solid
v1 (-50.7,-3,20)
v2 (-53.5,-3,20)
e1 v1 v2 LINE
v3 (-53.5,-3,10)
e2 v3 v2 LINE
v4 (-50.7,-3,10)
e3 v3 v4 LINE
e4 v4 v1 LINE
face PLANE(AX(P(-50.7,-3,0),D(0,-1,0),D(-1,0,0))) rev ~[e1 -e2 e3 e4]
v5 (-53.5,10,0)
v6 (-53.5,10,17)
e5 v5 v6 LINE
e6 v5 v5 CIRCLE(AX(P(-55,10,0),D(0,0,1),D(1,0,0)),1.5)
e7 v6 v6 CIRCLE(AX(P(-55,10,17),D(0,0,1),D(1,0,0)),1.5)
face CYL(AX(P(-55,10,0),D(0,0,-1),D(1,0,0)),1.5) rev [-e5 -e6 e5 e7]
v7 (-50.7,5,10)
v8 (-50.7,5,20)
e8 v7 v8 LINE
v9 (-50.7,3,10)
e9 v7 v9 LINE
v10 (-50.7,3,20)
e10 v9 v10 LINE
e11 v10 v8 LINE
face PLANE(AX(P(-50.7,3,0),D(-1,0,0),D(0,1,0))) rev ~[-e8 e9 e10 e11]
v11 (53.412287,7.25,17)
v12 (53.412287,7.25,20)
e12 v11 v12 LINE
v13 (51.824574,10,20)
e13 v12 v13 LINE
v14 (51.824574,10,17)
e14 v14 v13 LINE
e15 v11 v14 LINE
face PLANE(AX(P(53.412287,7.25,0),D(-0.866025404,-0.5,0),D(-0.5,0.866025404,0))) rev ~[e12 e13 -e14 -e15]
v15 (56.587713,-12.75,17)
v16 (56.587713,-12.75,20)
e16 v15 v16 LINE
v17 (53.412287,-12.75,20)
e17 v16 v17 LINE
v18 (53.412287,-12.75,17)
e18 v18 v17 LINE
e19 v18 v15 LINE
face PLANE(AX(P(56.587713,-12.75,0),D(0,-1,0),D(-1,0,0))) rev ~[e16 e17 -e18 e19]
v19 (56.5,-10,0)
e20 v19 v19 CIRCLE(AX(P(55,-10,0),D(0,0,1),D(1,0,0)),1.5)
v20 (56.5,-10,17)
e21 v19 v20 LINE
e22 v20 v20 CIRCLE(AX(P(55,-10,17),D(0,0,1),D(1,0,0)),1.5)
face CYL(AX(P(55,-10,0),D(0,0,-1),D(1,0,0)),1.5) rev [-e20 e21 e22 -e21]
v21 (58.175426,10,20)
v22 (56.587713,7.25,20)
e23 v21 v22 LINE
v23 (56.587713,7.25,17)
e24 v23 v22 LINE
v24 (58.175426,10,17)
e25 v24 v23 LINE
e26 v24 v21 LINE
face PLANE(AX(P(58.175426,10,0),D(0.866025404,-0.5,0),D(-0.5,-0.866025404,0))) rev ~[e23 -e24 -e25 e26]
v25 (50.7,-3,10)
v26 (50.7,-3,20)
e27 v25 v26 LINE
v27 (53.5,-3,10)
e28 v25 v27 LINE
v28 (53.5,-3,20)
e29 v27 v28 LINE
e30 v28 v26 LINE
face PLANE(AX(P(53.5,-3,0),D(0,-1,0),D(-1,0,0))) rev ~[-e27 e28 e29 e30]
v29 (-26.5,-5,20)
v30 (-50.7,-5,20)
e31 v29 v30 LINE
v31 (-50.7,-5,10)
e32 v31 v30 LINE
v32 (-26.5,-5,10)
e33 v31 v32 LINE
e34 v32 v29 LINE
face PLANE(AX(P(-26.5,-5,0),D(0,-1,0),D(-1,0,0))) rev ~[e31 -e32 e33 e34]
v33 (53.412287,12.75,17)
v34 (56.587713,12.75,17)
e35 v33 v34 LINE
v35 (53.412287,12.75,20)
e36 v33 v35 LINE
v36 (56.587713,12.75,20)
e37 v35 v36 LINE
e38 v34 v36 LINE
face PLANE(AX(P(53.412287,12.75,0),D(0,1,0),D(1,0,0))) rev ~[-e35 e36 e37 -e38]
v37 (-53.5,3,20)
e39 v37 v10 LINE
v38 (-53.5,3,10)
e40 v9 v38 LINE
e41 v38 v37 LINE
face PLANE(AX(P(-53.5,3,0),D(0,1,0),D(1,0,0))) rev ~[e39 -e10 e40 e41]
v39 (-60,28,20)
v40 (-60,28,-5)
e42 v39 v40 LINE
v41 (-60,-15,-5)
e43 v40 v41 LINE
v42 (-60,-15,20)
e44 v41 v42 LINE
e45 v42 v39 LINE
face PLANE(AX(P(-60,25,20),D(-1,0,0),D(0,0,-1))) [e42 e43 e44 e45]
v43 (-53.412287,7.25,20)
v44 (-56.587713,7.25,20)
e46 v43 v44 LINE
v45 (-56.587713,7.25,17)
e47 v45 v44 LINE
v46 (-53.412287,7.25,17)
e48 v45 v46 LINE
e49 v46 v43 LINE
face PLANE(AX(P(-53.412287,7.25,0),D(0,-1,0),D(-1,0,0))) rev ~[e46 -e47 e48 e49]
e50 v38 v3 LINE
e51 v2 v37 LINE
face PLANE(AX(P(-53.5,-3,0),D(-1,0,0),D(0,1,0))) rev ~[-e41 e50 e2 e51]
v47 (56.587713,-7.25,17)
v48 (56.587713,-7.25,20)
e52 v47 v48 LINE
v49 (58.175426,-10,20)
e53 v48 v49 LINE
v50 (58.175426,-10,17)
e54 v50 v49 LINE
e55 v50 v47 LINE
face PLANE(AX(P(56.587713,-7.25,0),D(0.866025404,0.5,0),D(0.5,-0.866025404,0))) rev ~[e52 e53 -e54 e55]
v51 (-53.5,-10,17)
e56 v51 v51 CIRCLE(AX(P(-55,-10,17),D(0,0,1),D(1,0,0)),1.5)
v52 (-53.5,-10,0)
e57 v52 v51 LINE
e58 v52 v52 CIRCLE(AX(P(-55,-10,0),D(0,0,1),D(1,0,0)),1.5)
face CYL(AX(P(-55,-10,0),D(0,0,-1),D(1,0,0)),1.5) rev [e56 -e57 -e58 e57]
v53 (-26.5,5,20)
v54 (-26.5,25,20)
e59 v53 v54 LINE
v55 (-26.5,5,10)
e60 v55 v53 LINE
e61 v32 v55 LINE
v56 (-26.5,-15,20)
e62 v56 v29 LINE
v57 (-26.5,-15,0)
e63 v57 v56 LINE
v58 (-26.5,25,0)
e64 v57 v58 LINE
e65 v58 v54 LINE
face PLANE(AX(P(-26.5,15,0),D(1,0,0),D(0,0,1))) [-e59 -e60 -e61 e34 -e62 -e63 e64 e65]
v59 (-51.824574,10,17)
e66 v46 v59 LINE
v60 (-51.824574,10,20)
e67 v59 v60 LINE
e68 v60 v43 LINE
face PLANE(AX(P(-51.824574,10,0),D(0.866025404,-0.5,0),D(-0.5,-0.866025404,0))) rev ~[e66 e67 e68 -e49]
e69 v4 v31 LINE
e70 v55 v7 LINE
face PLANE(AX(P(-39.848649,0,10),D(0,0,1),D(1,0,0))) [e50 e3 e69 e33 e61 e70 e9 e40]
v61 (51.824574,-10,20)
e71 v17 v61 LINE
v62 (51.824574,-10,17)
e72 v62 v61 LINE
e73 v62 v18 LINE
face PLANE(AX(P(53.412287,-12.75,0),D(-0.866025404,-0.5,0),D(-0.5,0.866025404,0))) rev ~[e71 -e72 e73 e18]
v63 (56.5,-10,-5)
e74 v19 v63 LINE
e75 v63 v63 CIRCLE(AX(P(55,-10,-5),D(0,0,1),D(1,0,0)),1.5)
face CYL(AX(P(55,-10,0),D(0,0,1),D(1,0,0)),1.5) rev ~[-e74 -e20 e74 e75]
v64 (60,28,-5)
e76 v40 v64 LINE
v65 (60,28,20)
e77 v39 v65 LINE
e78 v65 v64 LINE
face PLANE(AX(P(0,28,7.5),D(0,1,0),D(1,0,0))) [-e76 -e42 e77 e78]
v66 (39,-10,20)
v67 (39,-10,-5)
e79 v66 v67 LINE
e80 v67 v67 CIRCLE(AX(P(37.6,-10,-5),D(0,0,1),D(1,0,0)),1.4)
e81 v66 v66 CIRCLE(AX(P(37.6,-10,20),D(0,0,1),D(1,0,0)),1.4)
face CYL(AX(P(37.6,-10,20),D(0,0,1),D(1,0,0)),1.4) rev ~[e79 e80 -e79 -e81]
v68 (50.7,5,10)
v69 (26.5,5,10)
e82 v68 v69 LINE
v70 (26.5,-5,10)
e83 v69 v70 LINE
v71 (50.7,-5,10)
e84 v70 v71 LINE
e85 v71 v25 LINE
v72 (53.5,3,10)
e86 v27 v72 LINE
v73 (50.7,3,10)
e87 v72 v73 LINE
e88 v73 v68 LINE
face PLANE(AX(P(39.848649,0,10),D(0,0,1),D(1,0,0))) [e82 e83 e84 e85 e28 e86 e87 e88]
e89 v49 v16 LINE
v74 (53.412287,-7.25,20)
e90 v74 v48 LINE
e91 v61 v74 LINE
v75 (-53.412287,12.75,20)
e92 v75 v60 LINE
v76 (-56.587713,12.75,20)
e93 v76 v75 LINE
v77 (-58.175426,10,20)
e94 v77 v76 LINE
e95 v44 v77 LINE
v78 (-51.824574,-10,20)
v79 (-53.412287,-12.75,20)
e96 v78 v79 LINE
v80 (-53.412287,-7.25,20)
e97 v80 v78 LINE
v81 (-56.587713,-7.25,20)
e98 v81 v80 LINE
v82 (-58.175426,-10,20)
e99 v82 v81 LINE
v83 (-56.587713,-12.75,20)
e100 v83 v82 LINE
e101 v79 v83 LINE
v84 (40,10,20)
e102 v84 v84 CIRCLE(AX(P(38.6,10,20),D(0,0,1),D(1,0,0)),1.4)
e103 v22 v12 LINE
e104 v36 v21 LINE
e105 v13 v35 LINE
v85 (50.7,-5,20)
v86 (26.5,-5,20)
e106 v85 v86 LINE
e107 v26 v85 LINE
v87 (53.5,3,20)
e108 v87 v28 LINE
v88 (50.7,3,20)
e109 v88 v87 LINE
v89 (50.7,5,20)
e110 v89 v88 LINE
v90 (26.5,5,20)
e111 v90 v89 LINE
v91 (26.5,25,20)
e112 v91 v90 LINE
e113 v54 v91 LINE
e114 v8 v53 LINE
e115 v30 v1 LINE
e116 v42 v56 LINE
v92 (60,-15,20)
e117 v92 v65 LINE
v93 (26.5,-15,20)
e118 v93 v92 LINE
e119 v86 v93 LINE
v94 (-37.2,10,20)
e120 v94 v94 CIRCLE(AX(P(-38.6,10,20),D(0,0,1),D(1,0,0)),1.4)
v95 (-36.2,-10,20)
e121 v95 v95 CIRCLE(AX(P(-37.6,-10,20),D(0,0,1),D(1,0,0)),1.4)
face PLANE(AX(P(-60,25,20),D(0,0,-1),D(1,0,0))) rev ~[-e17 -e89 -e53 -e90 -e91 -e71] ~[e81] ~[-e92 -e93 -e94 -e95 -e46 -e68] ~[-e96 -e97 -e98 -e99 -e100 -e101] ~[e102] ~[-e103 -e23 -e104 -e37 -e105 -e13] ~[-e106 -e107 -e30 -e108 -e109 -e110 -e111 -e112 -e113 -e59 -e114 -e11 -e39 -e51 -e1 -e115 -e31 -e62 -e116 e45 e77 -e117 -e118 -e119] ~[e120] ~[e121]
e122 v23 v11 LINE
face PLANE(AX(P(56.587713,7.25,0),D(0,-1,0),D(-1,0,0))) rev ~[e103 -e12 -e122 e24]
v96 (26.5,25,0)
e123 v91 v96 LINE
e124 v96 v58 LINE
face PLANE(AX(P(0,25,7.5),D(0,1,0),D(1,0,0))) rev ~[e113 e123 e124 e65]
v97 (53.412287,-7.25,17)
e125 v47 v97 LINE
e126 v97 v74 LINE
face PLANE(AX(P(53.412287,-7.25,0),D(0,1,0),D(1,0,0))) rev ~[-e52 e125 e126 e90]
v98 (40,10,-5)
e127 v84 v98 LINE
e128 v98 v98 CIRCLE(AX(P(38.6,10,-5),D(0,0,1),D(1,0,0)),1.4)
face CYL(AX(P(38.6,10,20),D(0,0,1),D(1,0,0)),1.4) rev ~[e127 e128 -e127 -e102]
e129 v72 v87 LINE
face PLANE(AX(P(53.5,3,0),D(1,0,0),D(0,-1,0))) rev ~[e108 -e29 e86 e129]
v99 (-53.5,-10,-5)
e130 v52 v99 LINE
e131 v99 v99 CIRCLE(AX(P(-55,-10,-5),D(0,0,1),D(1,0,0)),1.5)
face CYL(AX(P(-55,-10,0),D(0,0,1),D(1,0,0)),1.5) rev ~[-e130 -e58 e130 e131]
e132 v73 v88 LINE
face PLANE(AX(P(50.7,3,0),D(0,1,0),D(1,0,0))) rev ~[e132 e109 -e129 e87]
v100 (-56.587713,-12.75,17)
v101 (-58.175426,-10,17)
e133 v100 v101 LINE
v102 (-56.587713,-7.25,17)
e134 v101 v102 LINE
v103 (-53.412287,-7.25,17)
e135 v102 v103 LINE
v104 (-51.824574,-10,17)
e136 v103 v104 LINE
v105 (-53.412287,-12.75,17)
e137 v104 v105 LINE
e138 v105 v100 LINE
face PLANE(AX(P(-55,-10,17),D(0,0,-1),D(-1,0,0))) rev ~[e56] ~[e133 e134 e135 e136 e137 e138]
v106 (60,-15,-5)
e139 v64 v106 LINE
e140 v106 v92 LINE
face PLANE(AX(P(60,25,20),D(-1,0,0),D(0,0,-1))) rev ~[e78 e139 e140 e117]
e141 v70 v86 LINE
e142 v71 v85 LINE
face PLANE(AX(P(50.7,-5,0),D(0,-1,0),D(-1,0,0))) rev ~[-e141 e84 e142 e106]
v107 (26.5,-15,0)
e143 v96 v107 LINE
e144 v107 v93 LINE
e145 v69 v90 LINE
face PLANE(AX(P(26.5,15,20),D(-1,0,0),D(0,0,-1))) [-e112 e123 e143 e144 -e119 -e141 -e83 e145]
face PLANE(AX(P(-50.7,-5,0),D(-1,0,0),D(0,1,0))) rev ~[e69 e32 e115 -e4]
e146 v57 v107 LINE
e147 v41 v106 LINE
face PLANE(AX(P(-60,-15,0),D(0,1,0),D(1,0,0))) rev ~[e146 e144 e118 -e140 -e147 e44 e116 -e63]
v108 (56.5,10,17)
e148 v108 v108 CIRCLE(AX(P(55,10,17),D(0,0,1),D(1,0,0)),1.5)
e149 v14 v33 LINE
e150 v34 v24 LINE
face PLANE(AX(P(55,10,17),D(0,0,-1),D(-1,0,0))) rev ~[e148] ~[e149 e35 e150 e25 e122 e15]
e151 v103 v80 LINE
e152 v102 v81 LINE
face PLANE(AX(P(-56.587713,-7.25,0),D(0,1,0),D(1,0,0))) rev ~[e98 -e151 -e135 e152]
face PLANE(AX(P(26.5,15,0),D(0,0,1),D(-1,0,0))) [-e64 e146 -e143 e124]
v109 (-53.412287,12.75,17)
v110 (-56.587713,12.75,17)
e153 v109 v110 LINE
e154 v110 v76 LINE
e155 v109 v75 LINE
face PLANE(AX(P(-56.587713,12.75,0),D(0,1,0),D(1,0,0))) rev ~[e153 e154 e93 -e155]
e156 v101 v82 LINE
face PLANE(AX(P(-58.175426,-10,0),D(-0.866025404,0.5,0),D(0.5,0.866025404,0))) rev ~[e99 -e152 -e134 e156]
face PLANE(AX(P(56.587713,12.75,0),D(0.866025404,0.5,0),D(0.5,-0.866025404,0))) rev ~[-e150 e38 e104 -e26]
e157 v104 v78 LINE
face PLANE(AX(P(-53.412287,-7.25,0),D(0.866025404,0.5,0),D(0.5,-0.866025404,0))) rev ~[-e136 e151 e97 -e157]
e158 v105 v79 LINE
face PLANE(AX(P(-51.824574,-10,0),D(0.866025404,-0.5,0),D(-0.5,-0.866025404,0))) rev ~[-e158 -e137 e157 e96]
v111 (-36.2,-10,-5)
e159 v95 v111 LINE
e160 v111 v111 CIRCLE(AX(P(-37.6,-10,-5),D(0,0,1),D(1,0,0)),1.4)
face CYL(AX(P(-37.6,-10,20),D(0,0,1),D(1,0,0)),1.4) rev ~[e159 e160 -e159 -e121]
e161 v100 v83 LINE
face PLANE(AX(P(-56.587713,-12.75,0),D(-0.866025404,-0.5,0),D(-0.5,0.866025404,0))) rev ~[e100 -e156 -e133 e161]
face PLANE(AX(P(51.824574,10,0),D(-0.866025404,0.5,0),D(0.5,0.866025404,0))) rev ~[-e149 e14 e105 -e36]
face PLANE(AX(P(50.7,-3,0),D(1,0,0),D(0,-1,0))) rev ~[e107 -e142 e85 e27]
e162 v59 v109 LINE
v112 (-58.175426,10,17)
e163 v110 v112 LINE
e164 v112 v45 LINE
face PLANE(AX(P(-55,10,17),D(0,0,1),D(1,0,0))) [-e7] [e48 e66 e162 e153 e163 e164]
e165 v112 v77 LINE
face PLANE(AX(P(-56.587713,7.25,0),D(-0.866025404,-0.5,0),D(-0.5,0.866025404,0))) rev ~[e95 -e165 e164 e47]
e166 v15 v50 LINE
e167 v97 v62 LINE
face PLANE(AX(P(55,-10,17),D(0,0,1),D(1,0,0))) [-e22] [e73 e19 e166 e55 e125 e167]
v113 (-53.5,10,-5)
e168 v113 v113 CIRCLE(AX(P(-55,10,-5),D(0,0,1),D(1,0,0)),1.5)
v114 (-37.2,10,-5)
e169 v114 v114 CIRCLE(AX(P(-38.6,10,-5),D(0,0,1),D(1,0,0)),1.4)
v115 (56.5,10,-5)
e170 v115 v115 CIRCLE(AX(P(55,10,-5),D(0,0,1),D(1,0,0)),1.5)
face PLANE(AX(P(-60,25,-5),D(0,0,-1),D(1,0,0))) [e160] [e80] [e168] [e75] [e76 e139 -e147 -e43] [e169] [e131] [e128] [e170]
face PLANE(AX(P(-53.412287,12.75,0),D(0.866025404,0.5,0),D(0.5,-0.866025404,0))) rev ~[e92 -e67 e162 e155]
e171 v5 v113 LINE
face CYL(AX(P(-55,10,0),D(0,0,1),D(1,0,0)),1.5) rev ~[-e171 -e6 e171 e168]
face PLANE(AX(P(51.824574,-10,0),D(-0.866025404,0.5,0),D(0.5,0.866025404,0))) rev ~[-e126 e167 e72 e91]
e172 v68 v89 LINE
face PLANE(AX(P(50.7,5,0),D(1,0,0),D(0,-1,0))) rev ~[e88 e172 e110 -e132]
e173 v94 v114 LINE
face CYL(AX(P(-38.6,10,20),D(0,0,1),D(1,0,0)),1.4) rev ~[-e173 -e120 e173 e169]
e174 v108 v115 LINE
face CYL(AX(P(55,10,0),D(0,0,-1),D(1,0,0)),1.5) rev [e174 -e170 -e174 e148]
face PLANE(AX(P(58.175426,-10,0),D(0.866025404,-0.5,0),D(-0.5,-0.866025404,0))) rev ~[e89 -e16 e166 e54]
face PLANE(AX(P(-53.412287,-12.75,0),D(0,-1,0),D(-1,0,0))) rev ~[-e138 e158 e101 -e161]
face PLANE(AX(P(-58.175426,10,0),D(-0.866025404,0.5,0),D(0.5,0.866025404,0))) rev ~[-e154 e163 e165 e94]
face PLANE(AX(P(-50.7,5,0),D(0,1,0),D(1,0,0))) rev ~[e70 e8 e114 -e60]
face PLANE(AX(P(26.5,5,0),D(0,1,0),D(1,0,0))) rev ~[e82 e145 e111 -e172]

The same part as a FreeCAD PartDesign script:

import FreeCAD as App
import Part
import Sketcher

V = App.Vector
Q = App.Units.Quantity

doc = App.newDocument("Part")
body = doc.addObject("PartDesign::Body", "Body")

# Sketch on XY plane
sketch1 = body.newObject("Sketcher::SketchObject", "Sketch")
sketch1.AttachmentSupport = (doc.getObject("XY_Plane"), [""])
sketch1.MapMode = "FlatFace"
sketch1.addGeometry([
    Part.LineSegment(V(-60, 15, 0), V(-60, -15, 0)),  # 0
    Part.LineSegment(V(-60, -15, 0), V(60, -15, 0)),  # 1
    Part.LineSegment(V(60, -15, 0), V(60, 15, 0)),  # 2
    Part.LineSegment(V(60, 15, 0), V(-60, 15, 0)),  # 3
    Part.Circle(V(-55, -10, 0), V(0, 0, 1), 1.5),  # 4
    Part.Circle(V(55, -10, 0), V(0, 0, 1), 1.5),  # 5
    Part.Circle(V(-55, 10, 0), V(0, 0, 1), 1.5),  # 6
    Part.Circle(V(55, 10, 0), V(0, 0, 1), 1.5),  # 7
], False)
sketch1.addConstraint([
    Sketcher.Constraint("Coincident", 0, 2, 1, 1),
    Sketcher.Constraint("Coincident", 1, 2, 2, 1),
    Sketcher.Constraint("Coincident", 2, 2, 3, 1),
    Sketcher.Constraint("Coincident", 3, 2, 0, 1),
    Sketcher.Constraint("Vertical", 0),
    Sketcher.Constraint("Horizontal", 1),
    Sketcher.Constraint("Vertical", 2),
    Sketcher.Constraint("Horizontal", 3),
    Sketcher.Constraint("Equal", 4, 5),
    Sketcher.Constraint("Equal", 5, 6),
    Sketcher.Constraint("Equal", 6, 7),
    Sketcher.Constraint("Symmetric", 5, 3, 6, 3, -1, 1),
    Sketcher.Constraint("Symmetric", 4, 3, 7, 3, -1, 1),
    Sketcher.Constraint("Symmetric", 0, 2, 2, 2, -1, 1),
    Sketcher.Constraint("Symmetric", 4, 3, 5, 3, -2),
    Sketcher.Constraint("Diameter", 4, Q("3 mm")),
    Sketcher.Constraint("DistanceX", 1, 1, 1, 2, Q("120 mm")),
    Sketcher.Constraint("DistanceY", 0, 2, 0, 1, Q("30 mm")),
    Sketcher.Constraint("DistanceX", 4, 3, -1, 1, Q("55 mm")),
    Sketcher.Constraint("DistanceY", 4, 3, -1, 1, Q("10 mm")),
])
pad1 = body.newObject("PartDesign::Pad", "Pad")
pad1.Profile = sketch1
pad1.Length = 5
pad1.Reversed = True

# Sketch on XY plane
sketch2 = body.newObject("Sketcher::SketchObject", "Sketch001")
sketch2.AttachmentSupport = (doc.getObject("XY_Plane"), [""])
sketch2.MapMode = "FlatFace"
sketch2.addGeometry([
    Part.LineSegment(V(-26.5, 15, 0), V(-60, 15, 0)),  # 0
    Part.LineSegment(V(-60, 15, 0), V(-60, -15, 0)),  # 1
    Part.LineSegment(V(-60, -15, 0), V(-26.5, -15, 0)),  # 2
    Part.LineSegment(V(-26.5, -15, 0), V(-26.5, -5, 0)),  # 3
    Part.LineSegment(V(-26.5, -5, 0), V(-50.7, -5, 0)),  # 4
    Part.LineSegment(V(-50.7, -5, 0), V(-50.7, -3, 0)),  # 5
    Part.LineSegment(V(-50.7, -3, 0), V(-53.5, -3, 0)),  # 6
    Part.LineSegment(V(-53.5, -3, 0), V(-53.5, 3, 0)),  # 7
    Part.LineSegment(V(-53.5, 3, 0), V(-50.7, 3, 0)),  # 8
    Part.LineSegment(V(-50.7, 3, 0), V(-50.7, 5, 0)),  # 9
    Part.LineSegment(V(-50.7, 5, 0), V(-26.5, 5, 0)),  # 10
    Part.LineSegment(V(-26.5, 5, 0), V(-26.5, 15, 0)),  # 11
    Part.LineSegment(V(-56.587713, -7.25, 0), V(-53.412287, -7.25, 0)),  # 12
    Part.LineSegment(V(-53.412287, -7.25, 0), V(-51.824574, -10, 0)),  # 13
    Part.LineSegment(V(-51.824574, -10, 0), V(-53.412287, -12.75, 0)),  # 14
    Part.LineSegment(V(-53.412287, -12.75, 0), V(-56.587713, -12.75, 0)),  # 15
    Part.LineSegment(V(-56.587713, -12.75, 0), V(-58.175426, -10, 0)),  # 16
    Part.LineSegment(V(-58.175426, -10, 0), V(-56.587713, -7.25, 0)),  # 17
    Part.LineSegment(V(-56.587713, 12.75, 0), V(-53.412287, 12.75, 0)),  # 18
    Part.LineSegment(V(-53.412287, 12.75, 0), V(-51.824574, 10, 0)),  # 19
    Part.LineSegment(V(-51.824574, 10, 0), V(-53.412287, 7.25, 0)),  # 20
    Part.LineSegment(V(-53.412287, 7.25, 0), V(-56.587713, 7.25, 0)),  # 21
    Part.LineSegment(V(-56.587713, 7.25, 0), V(-58.175426, 10, 0)),  # 22
    Part.LineSegment(V(-58.175426, 10, 0), V(-56.587713, 12.75, 0)),  # 23
    Part.LineSegment(V(60, 15, 0), V(26.5, 15, 0)),  # 24
    Part.LineSegment(V(26.5, 15, 0), V(26.5, 5, 0)),  # 25
    Part.LineSegment(V(26.5, 5, 0), V(50.7, 5, 0)),  # 26
    Part.LineSegment(V(50.7, 5, 0), V(50.7, 3, 0)),  # 27
    Part.LineSegment(V(50.7, 3, 0), V(53.5, 3, 0)),  # 28
    Part.LineSegment(V(53.5, 3, 0), V(53.5, -3, 0)),  # 29
    Part.LineSegment(V(53.5, -3, 0), V(50.7, -3, 0)),  # 30
    Part.LineSegment(V(50.7, -3, 0), V(50.7, -5, 0)),  # 31
    Part.LineSegment(V(50.7, -5, 0), V(26.5, -5, 0)),  # 32
    Part.LineSegment(V(26.5, -5, 0), V(26.5, -15, 0)),  # 33
    Part.LineSegment(V(26.5, -15, 0), V(60, -15, 0)),  # 34
    Part.LineSegment(V(60, -15, 0), V(60, 15, 0)),  # 35
    Part.LineSegment(V(53.412287, -7.25, 0), V(56.587713, -7.25, 0)),  # 36
    Part.LineSegment(V(56.587713, -7.25, 0), V(58.175426, -10, 0)),  # 37
    Part.LineSegment(V(58.175426, -10, 0), V(56.587713, -12.75, 0)),  # 38
    Part.LineSegment(V(56.587713, -12.75, 0), V(53.412287, -12.75, 0)),  # 39
    Part.LineSegment(V(53.412287, -12.75, 0), V(51.824574, -10, 0)),  # 40
    Part.LineSegment(V(51.824574, -10, 0), V(53.412287, -7.25, 0)),  # 41
    Part.LineSegment(V(58.175426, 10, 0), V(56.587713, 7.25, 0)),  # 42
    Part.LineSegment(V(56.587713, 7.25, 0), V(53.412287, 7.25, 0)),  # 43
    Part.LineSegment(V(53.412287, 7.25, 0), V(51.824574, 10, 0)),  # 44
    Part.LineSegment(V(51.824574, 10, 0), V(53.412287, 12.75, 0)),  # 45
    Part.LineSegment(V(53.412287, 12.75, 0), V(56.587713, 12.75, 0)),  # 46
    Part.LineSegment(V(56.587713, 12.75, 0), V(58.175426, 10, 0)),  # 47
], False)
sketch2.addConstraint([
    Sketcher.Constraint("Coincident", 0, 2, 1, 1),
    Sketcher.Constraint("Coincident", 1, 2, 2, 1),
    Sketcher.Constraint("Coincident", 2, 2, 3, 1),
    Sketcher.Constraint("Coincident", 3, 2, 4, 1),
    Sketcher.Constraint("Coincident", 4, 2, 5, 1),
    Sketcher.Constraint("Coincident", 5, 2, 6, 1),
    Sketcher.Constraint("Coincident", 6, 2, 7, 1),
    Sketcher.Constraint("Coincident", 7, 2, 8, 1),
    Sketcher.Constraint("Coincident", 8, 2, 9, 1),
    Sketcher.Constraint("Coincident", 9, 2, 10, 1),
    Sketcher.Constraint("Coincident", 10, 2, 11, 1),
    Sketcher.Constraint("Coincident", 11, 2, 0, 1),
    Sketcher.Constraint("Coincident", 12, 2, 13, 1),
    Sketcher.Constraint("Coincident", 13, 2, 14, 1),
    Sketcher.Constraint("Coincident", 14, 2, 15, 1),
    Sketcher.Constraint("Coincident", 15, 2, 16, 1),
    Sketcher.Constraint("Coincident", 16, 2, 17, 1),
    Sketcher.Constraint("Coincident", 17, 2, 12, 1),
    Sketcher.Constraint("Coincident", 18, 2, 19, 1),
    Sketcher.Constraint("Coincident", 19, 2, 20, 1),
    Sketcher.Constraint("Coincident", 20, 2, 21, 1),
    Sketcher.Constraint("Coincident", 21, 2, 22, 1),
    Sketcher.Constraint("Coincident", 22, 2, 23, 1),
    Sketcher.Constraint("Coincident", 23, 2, 18, 1),
    Sketcher.Constraint("Coincident", 24, 2, 25, 1),
    Sketcher.Constraint("Coincident", 25, 2, 26, 1),
    Sketcher.Constraint("Coincident", 26, 2, 27, 1),
    Sketcher.Constraint("Coincident", 27, 2, 28, 1),
    Sketcher.Constraint("Coincident", 28, 2, 29, 1),
    Sketcher.Constraint("Coincident", 29, 2, 30, 1),
    Sketcher.Constraint("Coincident", 30, 2, 31, 1),
    Sketcher.Constraint("Coincident", 31, 2, 32, 1),
    Sketcher.Constraint("Coincident", 32, 2, 33, 1),
    Sketcher.Constraint("Coincident", 33, 2, 34, 1),
    Sketcher.Constraint("Coincident", 34, 2, 35, 1),
    Sketcher.Constraint("Coincident", 35, 2, 24, 1),
    Sketcher.Constraint("Coincident", 36, 2, 37, 1),
    Sketcher.Constraint("Coincident", 37, 2, 38, 1),
    Sketcher.Constraint("Coincident", 38, 2, 39, 1),
    Sketcher.Constraint("Coincident", 39, 2, 40, 1),
    Sketcher.Constraint("Coincident", 40, 2, 41, 1),
    Sketcher.Constraint("Coincident", 41, 2, 36, 1),
    Sketcher.Constraint("Coincident", 42, 2, 43, 1),
    Sketcher.Constraint("Coincident", 43, 2, 44, 1),
    Sketcher.Constraint("Coincident", 44, 2, 45, 1),
    Sketcher.Constraint("Coincident", 45, 2, 46, 1),
    Sketcher.Constraint("Coincident", 46, 2, 47, 1),
    Sketcher.Constraint("Coincident", 47, 2, 42, 1),
    Sketcher.Constraint("Horizontal", 0),
    Sketcher.Constraint("Vertical", 1),
    Sketcher.Constraint("Horizontal", 2),
    Sketcher.Constraint("Vertical", 3),
    Sketcher.Constraint("Horizontal", 4),
    Sketcher.Constraint("Vertical", 5),
    Sketcher.Constraint("Horizontal", 6),
    Sketcher.Constraint("Vertical", 7),
    Sketcher.Constraint("Horizontal", 8),
    Sketcher.Constraint("Vertical", 9),
    Sketcher.Constraint("Horizontal", 10),
    Sketcher.Constraint("Vertical", 11),
    Sketcher.Constraint("Horizontal", 12),
    Sketcher.Constraint("Horizontal", 15),
    Sketcher.Constraint("Horizontal", 18),
    Sketcher.Constraint("Horizontal", 21),
    Sketcher.Constraint("Horizontal", 24),
    Sketcher.Constraint("Vertical", 25),
    Sketcher.Constraint("Horizontal", 26),
    Sketcher.Constraint("Vertical", 27),
    Sketcher.Constraint("Horizontal", 28),
    Sketcher.Constraint("Vertical", 29),
    Sketcher.Constraint("Horizontal", 30),
    Sketcher.Constraint("Vertical", 31),
    Sketcher.Constraint("Horizontal", 32),
    Sketcher.Constraint("Vertical", 33),
    Sketcher.Constraint("Horizontal", 34),
    Sketcher.Constraint("Vertical", 35),
    Sketcher.Constraint("Horizontal", 36),
    Sketcher.Constraint("Horizontal", 39),
    Sketcher.Constraint("Horizontal", 43),
    Sketcher.Constraint("Horizontal", 46),
    Sketcher.Constraint("Symmetric", 2, 2, 24, 2, -1, 1),
    Sketcher.Constraint("Symmetric", 4, 2, 26, 2, -1, 1),
    Sketcher.Constraint("Symmetric", 6, 2, 28, 2, -1, 1),
    Sketcher.Constraint("Symmetric", 8, 2, 30, 2, -1, 1),
    Sketcher.Constraint("Symmetric", 10, 2, 32, 2, -1, 1),
    Sketcher.Constraint("Symmetric", 0, 2, 34, 2, -1, 1),
    Sketcher.Constraint("Symmetric", 21, 2, 36, 2, -1, 1),
    Sketcher.Constraint("Symmetric", 22, 2, 37, 2, -1, 1),
    Sketcher.Constraint("Symmetric", 23, 2, 38, 2, -1, 1),
    Sketcher.Constraint("Symmetric", 19, 2, 40, 2, -1, 1),
    Sketcher.Constraint("Symmetric", 17, 2, 42, 2, -1, 1),
    Sketcher.Constraint("Symmetric", 13, 2, 44, 2, -1, 1),
    Sketcher.Constraint("Symmetric", 14, 2, 45, 2, -1, 1),
    Sketcher.Constraint("Symmetric", 16, 2, 47, 2, -1, 1),
    Sketcher.Constraint("Symmetric", 11, 2, 24, 2, -2),
    Sketcher.Constraint("Symmetric", 9, 2, 26, 2, -2),
    Sketcher.Constraint("Symmetric", 17, 2, 36, 2, -2),
    Sketcher.Constraint("Symmetric", 16, 2, 37, 2, -2),
    Sketcher.Constraint("Symmetric", 15, 2, 38, 2, -2),
    Sketcher.Constraint("Symmetric", 13, 2, 40, 2, -2),
    Sketcher.Constraint("Parallel", 13, 16),
    Sketcher.Constraint("Parallel", 14, 17),
    Sketcher.Constraint("Parallel", 16, 19),
    Sketcher.Constraint("Parallel", 17, 20),
    Sketcher.Constraint("Parallel", 19, 22),
    Sketcher.Constraint("Parallel", 37, 40),
    Sketcher.Constraint("Parallel", 38, 41),
    Sketcher.Constraint("Parallel", 40, 44),
    Sketcher.Constraint("Parallel", 44, 47),
    Sketcher.Constraint("Horizontal", 13, 2, 16, 2),
    Sketcher.Constraint("Horizontal", 8, 2, 27, 2),
    Sketcher.Constraint("Vertical", 12, 2, 14, 2),
    Sketcher.Constraint("DistanceY", 1, 2, 1, 1, Q("30 mm")),
    Sketcher.Constraint("DistanceY", 3, 1, 3, 2, Q("10 mm")),
    Sketcher.Constraint("DistanceY", 5, 1, 5, 2, Q("2 mm")),
    Sketcher.Constraint("Angle", 13, Q("-60 deg")),
    Sketcher.Constraint("DistanceX", 0, 2, 0, 1, Q("33.5 mm")),
    Sketcher.Constraint("DistanceX", 4, 2, 4, 1, Q("24.2 mm")),
    Sketcher.Constraint("DistanceX", 6, 2, 6, 1, Q("2.8 mm")),
    Sketcher.Constraint("DistanceX", 0, 2, -1, 1, Q("60 mm")),
    Sketcher.Constraint("DistanceY", 13, 2, -1, 1, Q("10 mm")),
    Sketcher.Constraint("DistanceY", 14, 2, 12, 2, Q("5.5 mm")),
    Sketcher.Constraint("DistanceX", 12, 1, 12, 2, Q("3.175426 mm")),
    Sketcher.Constraint("DistanceX", 12, 2, -1, 1, Q("53.412287 mm")),
])
pad2 = body.newObject("PartDesign::Pad", "Pad001")
pad2.Profile = sketch2
pad2.Length = 20

# Sketch on XY plane
sketch3 = body.newObject("Sketcher::SketchObject", "Sketch002")
sketch3.AttachmentSupport = (doc.getObject("XY_Plane"), [""])
sketch3.MapMode = "FlatFace"
sketch3.addGeometry([
    Part.LineSegment(V(-26.5, -5, 0), V(-26.5, 5, 0)),  # 0
    Part.LineSegment(V(-26.5, 5, 0), V(-50.7, 5, 0)),  # 1
    Part.LineSegment(V(-50.7, 5, 0), V(-50.7, 3, 0)),  # 2
    Part.LineSegment(V(-50.7, 3, 0), V(-53.5, 3, 0)),  # 3
    Part.LineSegment(V(-53.5, 3, 0), V(-53.5, -3, 0)),  # 4
    Part.LineSegment(V(-53.5, -3, 0), V(-50.7, -3, 0)),  # 5
    Part.LineSegment(V(-50.7, -3, 0), V(-50.7, -5, 0)),  # 6
    Part.LineSegment(V(-50.7, -5, 0), V(-26.5, -5, 0)),  # 7
    Part.LineSegment(V(50.7, 5, 0), V(26.5, 5, 0)),  # 8
    Part.LineSegment(V(26.5, 5, 0), V(26.5, -5, 0)),  # 9
    Part.LineSegment(V(26.5, -5, 0), V(50.7, -5, 0)),  # 10
    Part.LineSegment(V(50.7, -5, 0), V(50.7, -3, 0)),  # 11
    Part.LineSegment(V(50.7, -3, 0), V(53.5, -3, 0)),  # 12
    Part.LineSegment(V(53.5, -3, 0), V(53.5, 3, 0)),  # 13
    Part.LineSegment(V(53.5, 3, 0), V(50.7, 3, 0)),  # 14
    Part.LineSegment(V(50.7, 3, 0), V(50.7, 5, 0)),  # 15
], False)
sketch3.addConstraint([
    Sketcher.Constraint("Coincident", 0, 2, 1, 1),
    Sketcher.Constraint("Coincident", 1, 2, 2, 1),
    Sketcher.Constraint("Coincident", 2, 2, 3, 1),
    Sketcher.Constraint("Coincident", 3, 2, 4, 1),
    Sketcher.Constraint("Coincident", 4, 2, 5, 1),
    Sketcher.Constraint("Coincident", 5, 2, 6, 1),
    Sketcher.Constraint("Coincident", 6, 2, 7, 1),
    Sketcher.Constraint("Coincident", 7, 2, 0, 1),
    Sketcher.Constraint("Coincident", 8, 2, 9, 1),
    Sketcher.Constraint("Coincident", 9, 2, 10, 1),
    Sketcher.Constraint("Coincident", 10, 2, 11, 1),
    Sketcher.Constraint("Coincident", 11, 2, 12, 1),
    Sketcher.Constraint("Coincident", 12, 2, 13, 1),
    Sketcher.Constraint("Coincident", 13, 2, 14, 1),
    Sketcher.Constraint("Coincident", 14, 2, 15, 1),
    Sketcher.Constraint("Coincident", 15, 2, 8, 1),
    Sketcher.Constraint("Vertical", 0),
    Sketcher.Constraint("Horizontal", 1),
    Sketcher.Constraint("Vertical", 2),
    Sketcher.Constraint("Horizontal", 3),
    Sketcher.Constraint("Vertical", 4),
    Sketcher.Constraint("Horizontal", 5),
    Sketcher.Constraint("Vertical", 6),
    Sketcher.Constraint("Horizontal", 7),
    Sketcher.Constraint("Horizontal", 8),
    Sketcher.Constraint("Vertical", 9),
    Sketcher.Constraint("Horizontal", 10),
    Sketcher.Constraint("Vertical", 11),
    Sketcher.Constraint("Horizontal", 12),
    Sketcher.Constraint("Vertical", 13),
    Sketcher.Constraint("Horizontal", 14),
    Sketcher.Constraint("Vertical", 15),
    Sketcher.Constraint("Symmetric", 7, 2, 8, 2, -1, 1),
    Sketcher.Constraint("Symmetric", 1, 2, 10, 2, -1, 1),
    Sketcher.Constraint("Symmetric", 3, 2, 12, 2, -1, 1),
    Sketcher.Constraint("Symmetric", 5, 2, 14, 2, -1, 1),
    Sketcher.Constraint("Symmetric", 6, 2, 10, 2, -2),
    Sketcher.Constraint("Horizontal", 5, 2, 11, 2),
    Sketcher.Constraint("DistanceY", 0, 1, 0, 2, Q("10 mm")),
    Sketcher.Constraint("DistanceY", 2, 2, 2, 1, Q("2 mm")),
    Sketcher.Constraint("DistanceX", 1, 2, 1, 1, Q("24.2 mm")),
    Sketcher.Constraint("DistanceX", 3, 2, 3, 1, Q("2.8 mm")),
    Sketcher.Constraint("DistanceX", 0, 2, 8, 2, Q("53 mm")),
])
pad3 = body.newObject("PartDesign::Pad", "Pad002")
pad3.Profile = sketch3
pad3.Length = 10

# Sketch on XY plane
sketch4 = body.newObject("Sketcher::SketchObject", "Sketch003")
sketch4.AttachmentSupport = (doc.getObject("XY_Plane"), [""])
sketch4.MapMode = "FlatFace"
sketch4.addGeometry([
    Part.LineSegment(V(53.412287, 12.75, 0), V(51.824574, 10, 0)),  # 0
    Part.LineSegment(V(51.824574, 10, 0), V(53.412287, 7.25, 0)),  # 1
    Part.LineSegment(V(53.412287, 7.25, 0), V(56.587713, 7.25, 0)),  # 2
    Part.LineSegment(V(56.587713, 7.25, 0), V(58.175426, 10, 0)),  # 3
    Part.LineSegment(V(58.175426, 10, 0), V(56.587713, 12.75, 0)),  # 4
    Part.LineSegment(V(56.587713, 12.75, 0), V(53.412287, 12.75, 0)),  # 5
    Part.Circle(V(55, 10, 0), V(0, 0, 1), 1.5),  # 6
    Part.LineSegment(V(56.587713, -7.25, 0), V(53.412287, -7.25, 0)),  # 7
    Part.LineSegment(V(53.412287, -7.25, 0), V(51.824574, -10, 0)),  # 8
    Part.LineSegment(V(51.824574, -10, 0), V(53.412287, -12.75, 0)),  # 9
    Part.LineSegment(V(53.412287, -12.75, 0), V(56.587713, -12.75, 0)),  # 10
    Part.LineSegment(V(56.587713, -12.75, 0), V(58.175426, -10, 0)),  # 11
    Part.LineSegment(V(58.175426, -10, 0), V(56.587713, -7.25, 0)),  # 12
    Part.Circle(V(55, -10, 0), V(0, 0, 1), 1.5),  # 13
    Part.LineSegment(V(-56.587713, 7.25, 0), V(-53.412287, 7.25, 0)),  # 14
    Part.LineSegment(V(-53.412287, 7.25, 0), V(-51.824574, 10, 0)),  # 15
    Part.LineSegment(V(-51.824574, 10, 0), V(-53.412287, 12.75, 0)),  # 16
    Part.LineSegment(V(-53.412287, 12.75, 0), V(-56.587713, 12.75, 0)),  # 17
    Part.LineSegment(V(-56.587713, 12.75, 0), V(-58.175426, 10, 0)),  # 18
    Part.LineSegment(V(-58.175426, 10, 0), V(-56.587713, 7.25, 0)),  # 19
    Part.Circle(V(-55, 10, 0), V(0, 0, 1), 1.5),  # 20
    Part.LineSegment(V(-53.412287, -12.75, 0), V(-51.824574, -10, 0)),  # 21
    Part.LineSegment(V(-51.824574, -10, 0), V(-53.412287, -7.25, 0)),  # 22
    Part.LineSegment(V(-53.412287, -7.25, 0), V(-56.587713, -7.25, 0)),  # 23
    Part.LineSegment(V(-56.587713, -7.25, 0), V(-58.175426, -10, 0)),  # 24
    Part.LineSegment(V(-58.175426, -10, 0), V(-56.587713, -12.75, 0)),  # 25
    Part.LineSegment(V(-56.587713, -12.75, 0), V(-53.412287, -12.75, 0)),  # 26
    Part.Circle(V(-55, -10, 0), V(0, 0, 1), 1.5),  # 27
], False)
sketch4.addConstraint([
    Sketcher.Constraint("Coincident", 0, 2, 1, 1),
    Sketcher.Constraint("Coincident", 1, 2, 2, 1),
    Sketcher.Constraint("Coincident", 2, 2, 3, 1),
    Sketcher.Constraint("Coincident", 3, 2, 4, 1),
    Sketcher.Constraint("Coincident", 4, 2, 5, 1),
    Sketcher.Constraint("Coincident", 5, 2, 0, 1),
    Sketcher.Constraint("Coincident", 7, 2, 8, 1),
    Sketcher.Constraint("Coincident", 8, 2, 9, 1),
    Sketcher.Constraint("Coincident", 9, 2, 10, 1),
    Sketcher.Constraint("Coincident", 10, 2, 11, 1),
    Sketcher.Constraint("Coincident", 11, 2, 12, 1),
    Sketcher.Constraint("Coincident", 12, 2, 7, 1),
    Sketcher.Constraint("Coincident", 14, 2, 15, 1),
    Sketcher.Constraint("Coincident", 15, 2, 16, 1),
    Sketcher.Constraint("Coincident", 16, 2, 17, 1),
    Sketcher.Constraint("Coincident", 17, 2, 18, 1),
    Sketcher.Constraint("Coincident", 18, 2, 19, 1),
    Sketcher.Constraint("Coincident", 19, 2, 14, 1),
    Sketcher.Constraint("Coincident", 21, 2, 22, 1),
    Sketcher.Constraint("Coincident", 22, 2, 23, 1),
    Sketcher.Constraint("Coincident", 23, 2, 24, 1),
    Sketcher.Constraint("Coincident", 24, 2, 25, 1),
    Sketcher.Constraint("Coincident", 25, 2, 26, 1),
    Sketcher.Constraint("Coincident", 26, 2, 21, 1),
    Sketcher.Constraint("Horizontal", 2),
    Sketcher.Constraint("Horizontal", 5),
    Sketcher.Constraint("Horizontal", 7),
    Sketcher.Constraint("Horizontal", 10),
    Sketcher.Constraint("Horizontal", 14),
    Sketcher.Constraint("Horizontal", 17),
    Sketcher.Constraint("Horizontal", 23),
    Sketcher.Constraint("Horizontal", 26),
    Sketcher.Constraint("Equal", 6, 13),
    Sketcher.Constraint("Equal", 13, 20),
    Sketcher.Constraint("Equal", 20, 27),
    Sketcher.Constraint("Symmetric", 13, 3, 20, 3, -1, 1),
    Sketcher.Constraint("Symmetric", 6, 3, 27, 3, -1, 1),
    Sketcher.Constraint("Symmetric", 7, 2, 14, 2, -1, 1),
    Sketcher.Constraint("Symmetric", 8, 2, 15, 2, -1, 1),
    Sketcher.Constraint("Symmetric", 9, 2, 16, 2, -1, 1),
    Sketcher.Constraint("Symmetric", 11, 2, 18, 2, -1, 1),
    Sketcher.Constraint("Symmetric", 0, 2, 21, 2, -1, 1),
    Sketcher.Constraint("Symmetric", 1, 2, 22, 2, -1, 1),
    Sketcher.Constraint("Symmetric", 3, 2, 24, 2, -1, 1),
    Sketcher.Constraint("Symmetric", 4, 2, 25, 2, -1, 1),
    Sketcher.Constraint("Symmetric", 6, 3, 20, 3, -2),
    Sketcher.Constraint("Symmetric", 1, 2, 14, 2, -2),
    Sketcher.Constraint("Symmetric", 0, 2, 15, 2, -2),
    Sketcher.Constraint("Symmetric", 5, 2, 16, 2, -2),
    Sketcher.Constraint("Symmetric", 3, 2, 18, 2, -2),
    Sketcher.Constraint("Parallel", 0, 3),
    Sketcher.Constraint("Parallel", 1, 4),
    Sketcher.Constraint("Parallel", 3, 8),
    Sketcher.Constraint("Parallel", 8, 11),
    Sketcher.Constraint("Parallel", 9, 12),
    Sketcher.Constraint("Parallel", 15, 18),
    Sketcher.Constraint("Parallel", 16, 19),
    Sketcher.Constraint("Parallel", 18, 21),
    Sketcher.Constraint("Parallel", 21, 24),
    Sketcher.Constraint("Horizontal", 20, 3, 0, 2),
    Sketcher.Constraint("Horizontal", 0, 2, 3, 2),
    Sketcher.Constraint("Vertical", 2, 2, 4, 2),
    Sketcher.Constraint("Diameter", 6, Q("3 mm")),
    Sketcher.Constraint("Angle", 0, Q("-120 deg")),
    Sketcher.Constraint("DistanceX", -1, 1, 6, 3, Q("55 mm")),
    Sketcher.Constraint("DistanceY", -1, 1, 6, 3, Q("10 mm")),
    Sketcher.Constraint("DistanceY", 2, 2, 4, 2, Q("5.5 mm")),
    Sketcher.Constraint("DistanceX", 2, 1, 2, 2, Q("3.175426 mm")),
    Sketcher.Constraint("DistanceX", 14, 2, 0, 2, Q("105.23686 mm")),
])
pad4 = body.newObject("PartDesign::Pad", "Pad003")
pad4.Profile = sketch4
pad4.Length = 17

# Sketch on XY plane
sketch5 = body.newObject("Sketcher::SketchObject", "Sketch004")
sketch5.AttachmentSupport = (doc.getObject("XY_Plane"), [""])
sketch5.MapMode = "FlatFace"
sketch5.AttachmentOffset = App.Placement(V(0, 0, 20), App.Rotation())
sketch5.addGeometry([
    Part.Circle(V(-38.6, 10, 0), V(0, 0, 1), 1.4),
    Part.Circle(V(-37.6, -10, 0), V(0, 0, 1), 1.4),
    Part.Circle(V(38.6, 10, 0), V(0, 0, 1), 1.4),
    Part.Circle(V(37.6, -10, 0), V(0, 0, 1), 1.4),
], False)
sketch5.addConstraint([
    Sketcher.Constraint("Equal", 0, 1),
    Sketcher.Constraint("Equal", 1, 2),
    Sketcher.Constraint("Equal", 2, 3),
    Sketcher.Constraint("Symmetric", 0, 3, 2, 3, -2),
    Sketcher.Constraint("Symmetric", 1, 3, 3, 3, -2),
    Sketcher.Constraint("Diameter", 0, Q("2.8 mm")),
    Sketcher.Constraint("DistanceY", -1, 1, 0, 3, Q("10 mm")),
    Sketcher.Constraint("DistanceY", 1, 3, -1, 1, Q("10 mm")),
    Sketcher.Constraint("DistanceX", 0, 3, 1, 3, Q("1 mm")),
    Sketcher.Constraint("DistanceX", 0, 3, -1, 1, Q("38.6 mm")),
])
pocket1 = body.newObject("PartDesign::Pocket", "Pocket")
pocket1.Profile = sketch5
pocket1.Type = "ThroughAll"

# Sketch on XZ plane
sketch6 = body.newObject("Sketcher::SketchObject", "Sketch005")
sketch6.AttachmentSupport = (doc.getObject("XZ_Plane"), [""])
sketch6.MapMode = "FlatFace"
sketch6.AttachmentOffset = App.Placement(V(0, 0, -15), App.Rotation())
sketch6.addGeometry([
    Part.LineSegment(V(-60, -5, 0), V(-60, 20, 0)),  # 0
    Part.LineSegment(V(-60, 20, 0), V(-26.5, 20, 0)),  # 1
    Part.LineSegment(V(-26.5, 20, 0), V(-26.5, 0, 0)),  # 2
    Part.LineSegment(V(-26.5, 0, 0), V(26.5, 0, 0)),  # 3
    Part.LineSegment(V(26.5, 0, 0), V(26.5, 20, 0)),  # 4
    Part.LineSegment(V(26.5, 20, 0), V(60, 20, 0)),  # 5
    Part.LineSegment(V(60, 20, 0), V(60, -5, 0)),  # 6
    Part.LineSegment(V(60, -5, 0), V(-60, -5, 0)),  # 7
], False)
sketch6.addConstraint([
    Sketcher.Constraint("Coincident", 0, 2, 1, 1),
    Sketcher.Constraint("Coincident", 1, 2, 2, 1),
    Sketcher.Constraint("Coincident", 2, 2, 3, 1),
    Sketcher.Constraint("Coincident", 3, 2, 4, 1),
    Sketcher.Constraint("Coincident", 4, 2, 5, 1),
    Sketcher.Constraint("Coincident", 5, 2, 6, 1),
    Sketcher.Constraint("Coincident", 6, 2, 7, 1),
    Sketcher.Constraint("Coincident", 7, 2, 0, 1),
    Sketcher.Constraint("Vertical", 0),
    Sketcher.Constraint("Horizontal", 1),
    Sketcher.Constraint("Vertical", 2),
    Sketcher.Constraint("Horizontal", 3),
    Sketcher.Constraint("Vertical", 4),
    Sketcher.Constraint("Horizontal", 5),
    Sketcher.Constraint("Vertical", 6),
    Sketcher.Constraint("Horizontal", 7),
    Sketcher.Constraint("Symmetric", 2, 2, 3, 2, -1, 1),
    Sketcher.Constraint("Symmetric", 0, 2, 5, 2, -2),
    Sketcher.Constraint("DistanceX", 3, 1, 3, 2, Q("53 mm")),
    Sketcher.Constraint("DistanceX", 7, 2, 7, 1, Q("120 mm")),
    Sketcher.Constraint("DistanceY", 0, 1, 0, 2, Q("25 mm")),
    Sketcher.Constraint("DistanceY", 2, 2, 2, 1, Q("20 mm")),
])
pad5 = body.newObject("PartDesign::Pad", "Pad004")
pad5.Profile = sketch6
pad5.Length = 10
pad5.Reversed = True

# Sketch on XZ plane
sketch7 = body.newObject("Sketcher::SketchObject", "Sketch006")
sketch7.AttachmentSupport = (doc.getObject("XZ_Plane"), [""])
sketch7.MapMode = "FlatFace"
sketch7.AttachmentOffset = App.Placement(V(0, 0, -25), App.Rotation())
sketch7.addGeometry([
    Part.LineSegment(V(-60, -5, 0), V(-60, 20, 0)),
    Part.LineSegment(V(-60, 20, 0), V(60, 20, 0)),
    Part.LineSegment(V(60, 20, 0), V(60, -5, 0)),
    Part.LineSegment(V(60, -5, 0), V(-60, -5, 0)),
], False)
sketch7.addConstraint([
    Sketcher.Constraint("Coincident", 0, 2, 1, 1),
    Sketcher.Constraint("Coincident", 1, 2, 2, 1),
    Sketcher.Constraint("Coincident", 2, 2, 3, 1),
    Sketcher.Constraint("Coincident", 3, 2, 0, 1),
    Sketcher.Constraint("Vertical", 0),
    Sketcher.Constraint("Horizontal", 1),
    Sketcher.Constraint("Vertical", 2),
    Sketcher.Constraint("Horizontal", 3),
    Sketcher.Constraint("DistanceX", 1, 1, 1, 2, Q("120 mm")),
    Sketcher.Constraint("DistanceY", 0, 1, 0, 2, Q("25 mm")),
    Sketcher.Constraint("DistanceX", 0, 2, -1, 1, Q("60 mm")),
    Sketcher.Constraint("DistanceY", -1, 1, 0, 2, Q("20 mm")),
])
pad6 = body.newObject("PartDesign::Pad", "Pad005")
pad6.Profile = sketch7
pad6.Length = 3
pad6.Reversed = True

doc.recompute()
